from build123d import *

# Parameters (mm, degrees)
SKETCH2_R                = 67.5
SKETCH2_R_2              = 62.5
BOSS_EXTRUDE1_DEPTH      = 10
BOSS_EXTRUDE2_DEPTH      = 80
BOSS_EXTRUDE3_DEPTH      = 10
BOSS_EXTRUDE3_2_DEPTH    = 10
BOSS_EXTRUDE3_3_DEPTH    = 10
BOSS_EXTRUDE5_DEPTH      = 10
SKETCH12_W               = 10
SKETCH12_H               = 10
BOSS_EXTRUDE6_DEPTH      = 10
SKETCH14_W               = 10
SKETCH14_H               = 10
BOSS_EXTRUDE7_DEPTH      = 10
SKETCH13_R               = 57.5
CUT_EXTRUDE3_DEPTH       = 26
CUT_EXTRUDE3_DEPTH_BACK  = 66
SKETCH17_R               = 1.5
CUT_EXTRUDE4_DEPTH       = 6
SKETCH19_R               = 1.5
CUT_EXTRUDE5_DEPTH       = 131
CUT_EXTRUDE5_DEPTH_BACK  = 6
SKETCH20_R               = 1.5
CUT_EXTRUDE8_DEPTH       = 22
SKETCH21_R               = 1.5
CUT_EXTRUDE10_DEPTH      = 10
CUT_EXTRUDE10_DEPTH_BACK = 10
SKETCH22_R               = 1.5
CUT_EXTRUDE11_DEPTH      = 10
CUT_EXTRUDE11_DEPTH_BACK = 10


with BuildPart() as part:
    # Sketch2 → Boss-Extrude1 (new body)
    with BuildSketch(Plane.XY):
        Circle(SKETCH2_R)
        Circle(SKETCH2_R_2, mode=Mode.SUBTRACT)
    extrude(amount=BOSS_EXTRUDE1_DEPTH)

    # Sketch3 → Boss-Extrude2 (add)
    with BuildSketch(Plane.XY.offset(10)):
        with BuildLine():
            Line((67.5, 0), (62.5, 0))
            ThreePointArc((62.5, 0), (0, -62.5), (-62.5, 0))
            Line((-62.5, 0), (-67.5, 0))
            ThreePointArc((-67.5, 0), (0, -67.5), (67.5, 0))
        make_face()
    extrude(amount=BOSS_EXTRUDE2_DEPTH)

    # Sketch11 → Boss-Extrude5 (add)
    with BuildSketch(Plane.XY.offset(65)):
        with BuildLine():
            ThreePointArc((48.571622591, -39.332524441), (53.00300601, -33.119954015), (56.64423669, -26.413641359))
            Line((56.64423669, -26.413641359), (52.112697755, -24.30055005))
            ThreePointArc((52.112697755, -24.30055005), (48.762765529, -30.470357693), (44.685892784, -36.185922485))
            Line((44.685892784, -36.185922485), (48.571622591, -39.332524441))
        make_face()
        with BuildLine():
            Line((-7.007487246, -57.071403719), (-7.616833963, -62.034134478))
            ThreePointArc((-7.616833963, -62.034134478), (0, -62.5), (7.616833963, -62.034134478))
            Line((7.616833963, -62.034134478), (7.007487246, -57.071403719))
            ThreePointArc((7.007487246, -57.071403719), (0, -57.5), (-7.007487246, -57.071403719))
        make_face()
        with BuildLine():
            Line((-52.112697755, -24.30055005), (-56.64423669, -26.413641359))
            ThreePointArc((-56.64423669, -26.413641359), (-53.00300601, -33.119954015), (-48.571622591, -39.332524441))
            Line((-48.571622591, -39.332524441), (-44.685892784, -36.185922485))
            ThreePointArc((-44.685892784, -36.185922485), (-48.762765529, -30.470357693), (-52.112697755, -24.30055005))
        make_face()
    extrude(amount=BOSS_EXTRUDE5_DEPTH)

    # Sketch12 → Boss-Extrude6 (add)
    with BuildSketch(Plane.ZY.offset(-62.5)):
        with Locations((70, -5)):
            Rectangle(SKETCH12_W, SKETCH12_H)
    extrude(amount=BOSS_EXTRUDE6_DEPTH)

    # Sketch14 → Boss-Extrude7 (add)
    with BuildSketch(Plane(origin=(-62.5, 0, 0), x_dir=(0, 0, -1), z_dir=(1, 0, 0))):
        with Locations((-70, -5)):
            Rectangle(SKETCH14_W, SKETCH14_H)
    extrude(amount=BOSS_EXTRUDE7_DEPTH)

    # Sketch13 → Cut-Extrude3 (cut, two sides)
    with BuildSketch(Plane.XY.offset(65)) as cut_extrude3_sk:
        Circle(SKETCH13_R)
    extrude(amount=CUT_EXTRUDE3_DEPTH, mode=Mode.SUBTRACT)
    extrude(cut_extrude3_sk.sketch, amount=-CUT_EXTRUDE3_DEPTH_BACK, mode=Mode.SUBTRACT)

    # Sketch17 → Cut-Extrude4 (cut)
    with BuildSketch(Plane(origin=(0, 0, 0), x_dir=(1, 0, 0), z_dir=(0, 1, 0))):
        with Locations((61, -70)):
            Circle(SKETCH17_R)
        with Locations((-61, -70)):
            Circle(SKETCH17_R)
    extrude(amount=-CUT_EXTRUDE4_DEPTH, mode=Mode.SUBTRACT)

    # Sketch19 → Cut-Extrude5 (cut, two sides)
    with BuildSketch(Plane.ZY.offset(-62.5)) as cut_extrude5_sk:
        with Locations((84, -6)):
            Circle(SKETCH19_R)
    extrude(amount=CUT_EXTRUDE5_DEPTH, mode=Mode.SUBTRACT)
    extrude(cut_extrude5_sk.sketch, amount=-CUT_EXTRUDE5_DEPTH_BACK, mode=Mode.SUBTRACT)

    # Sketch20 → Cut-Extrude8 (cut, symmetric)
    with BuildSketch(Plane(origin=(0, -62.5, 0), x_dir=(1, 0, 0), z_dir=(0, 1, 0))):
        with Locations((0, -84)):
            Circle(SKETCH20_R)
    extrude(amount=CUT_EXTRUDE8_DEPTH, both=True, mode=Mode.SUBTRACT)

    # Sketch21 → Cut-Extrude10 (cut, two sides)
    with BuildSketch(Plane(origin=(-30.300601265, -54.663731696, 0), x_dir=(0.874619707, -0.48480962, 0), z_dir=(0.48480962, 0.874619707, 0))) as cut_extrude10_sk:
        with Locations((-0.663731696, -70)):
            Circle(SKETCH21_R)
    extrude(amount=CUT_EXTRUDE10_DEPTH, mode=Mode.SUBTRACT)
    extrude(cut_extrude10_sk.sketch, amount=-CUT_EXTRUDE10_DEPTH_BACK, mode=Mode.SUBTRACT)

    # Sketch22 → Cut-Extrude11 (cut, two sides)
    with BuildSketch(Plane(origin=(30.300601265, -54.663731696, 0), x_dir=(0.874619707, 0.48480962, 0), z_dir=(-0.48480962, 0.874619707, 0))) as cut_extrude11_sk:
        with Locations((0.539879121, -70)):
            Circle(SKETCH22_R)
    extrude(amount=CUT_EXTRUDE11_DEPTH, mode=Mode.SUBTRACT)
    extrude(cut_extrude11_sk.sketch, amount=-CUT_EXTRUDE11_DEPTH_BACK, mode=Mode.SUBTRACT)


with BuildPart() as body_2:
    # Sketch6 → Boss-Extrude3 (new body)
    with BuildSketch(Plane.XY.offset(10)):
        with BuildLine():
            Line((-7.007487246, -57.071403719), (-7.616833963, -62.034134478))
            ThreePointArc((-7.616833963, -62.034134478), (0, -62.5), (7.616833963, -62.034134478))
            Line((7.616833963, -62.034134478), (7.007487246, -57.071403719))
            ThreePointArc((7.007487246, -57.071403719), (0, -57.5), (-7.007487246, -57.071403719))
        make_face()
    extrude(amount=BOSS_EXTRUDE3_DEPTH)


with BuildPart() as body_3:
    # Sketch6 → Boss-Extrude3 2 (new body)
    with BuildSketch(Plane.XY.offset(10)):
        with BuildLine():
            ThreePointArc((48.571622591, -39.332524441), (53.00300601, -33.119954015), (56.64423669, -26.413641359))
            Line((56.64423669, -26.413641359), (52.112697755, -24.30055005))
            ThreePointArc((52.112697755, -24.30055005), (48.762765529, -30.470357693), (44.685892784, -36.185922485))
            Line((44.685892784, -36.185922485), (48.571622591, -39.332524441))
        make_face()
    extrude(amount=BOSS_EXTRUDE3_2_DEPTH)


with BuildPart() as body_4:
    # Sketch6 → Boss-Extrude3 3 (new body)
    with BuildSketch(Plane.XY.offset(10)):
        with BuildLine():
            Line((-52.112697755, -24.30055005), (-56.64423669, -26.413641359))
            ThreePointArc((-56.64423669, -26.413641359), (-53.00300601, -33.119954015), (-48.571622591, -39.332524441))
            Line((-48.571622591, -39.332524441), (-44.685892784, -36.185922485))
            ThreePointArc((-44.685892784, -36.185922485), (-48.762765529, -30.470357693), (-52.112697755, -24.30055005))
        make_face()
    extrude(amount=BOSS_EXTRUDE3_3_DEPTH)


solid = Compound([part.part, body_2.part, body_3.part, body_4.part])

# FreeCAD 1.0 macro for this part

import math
import FreeCAD as App
import Part
import Sketcher
from FreeCAD import Vector
Q = App.Units.Quantity

doc = App.newDocument("Part")
body = doc.addObject("PartDesign::Body", "Body")

# Sketch on XY plane
sketch1 = body.newObject("Sketcher::SketchObject", "Sketch")
sketch1.AttachmentSupport = (doc.getObject("XY_Plane"), [""])
sketch1.MapMode = "FlatFace"
sketch1.addGeometry(Part.Circle(Vector(0, 0, 0), Vector(0, 0, 1), 68), False)
sketch1.addGeometry(Part.Circle(Vector(0, 0, 0), Vector(0, 0, 1), 62), False)
sketch1.addConstraint(Sketcher.Constraint("Coincident", 0, 3, -1, 1))
sketch1.addConstraint(Sketcher.Constraint("Coincident", 1, 3, -1, 1))
sketch1.addConstraint(Sketcher.Constraint("Diameter", 0, Q("135 mm")))
sketch1.addConstraint(Sketcher.Constraint("Diameter", 1, Q("125 mm")))
pad1 = body.newObject("PartDesign::Pad", "Pad")
pad1.Profile = sketch1
pad1.Length = 10

# Sketch on XY plane
sketch2 = body.newObject("Sketcher::SketchObject", "Sketch001")
sketch2.AttachmentSupport = (doc.getObject("XY_Plane"), [""])
sketch2.MapMode = "FlatFace"
sketch2.AttachmentOffset = App.Placement(Vector(0, 0, 10), App.Rotation())
sketch2.addGeometry(Part.LineSegment(Vector(68, 0, 0), Vector(62, 0, 0)), False)
sketch2.addGeometry(Part.ArcOfCircle(Part.Circle(Vector(0, 0, 0), Vector(0, 0, 1), 62), math.radians(180), math.radians(360)), False)
sketch2.addGeometry(Part.LineSegment(Vector(-62, 0, 0), Vector(-68, 0, 0)), False)
sketch2.addGeometry(Part.ArcOfCircle(Part.Circle(Vector(0, 0, 0), Vector(0, 0, 1), 68), math.radians(180), math.radians(360)), False)
sketch2.addConstraint(Sketcher.Constraint("Coincident", 0, 2, 1, 2))
sketch2.addConstraint(Sketcher.Constraint("Coincident", 1, 1, 2, 1))
sketch2.addConstraint(Sketcher.Constraint("Coincident", 2, 2, 3, 1))
sketch2.addConstraint(Sketcher.Constraint("Coincident", 3, 2, 0, 1))
sketch2.addConstraint(Sketcher.Constraint("Horizontal", 0))
sketch2.addConstraint(Sketcher.Constraint("Horizontal", 2))
sketch2.addConstraint(Sketcher.Constraint("Coincident", 1, 3, -1, 1))
sketch2.addConstraint(Sketcher.Constraint("Coincident", 3, 3, -1, 1))
sketch2.addConstraint(Sketcher.Constraint("PointOnObject", 0, 2, -1))
sketch2.addConstraint(Sketcher.Constraint("PointOnObject", 1, 1, -1))
sketch2.addConstraint(Sketcher.Constraint("Radius", 1, Q("62.5 mm")))
sketch2.addConstraint(Sketcher.Constraint("Radius", 3, Q("67.5 mm")))
pad2 = body.newObject("PartDesign::Pad", "Pad001")
pad2.Profile = sketch2
pad2.Length = 80

# Sketch on XY plane
sketch3 = body.newObject("Sketcher::SketchObject", "Sketch002")
sketch3.AttachmentSupport = (doc.getObject("XY_Plane"), [""])
sketch3.MapMode = "FlatFace"
sketch3.AttachmentOffset = App.Placement(Vector(0, 0, 65), App.Rotation())
sketch3.addGeometry(Part.ArcOfCircle(Part.Circle(Vector(0, 0, 0), Vector(0, 0, 1), 62.5), math.radians(-39), math.radians(-25)), False)
sketch3.addGeometry(Part.LineSegment(Vector(56.6, -26.4, 0), Vector(52.1, -24.3, 0)), False)
sketch3.addGeometry(Part.ArcOfCircle(Part.Circle(Vector(0, 0, 0), Vector(0, 0, 1), 57.5), math.radians(-39), math.radians(-25)), False)
sketch3.addGeometry(Part.LineSegment(Vector(44.7, -36.2, 0), Vector(48.6, -39.3, 0)), False)
sketch3.addGeometry(Part.LineSegment(Vector(-7, -57.1, 0), Vector(-7.6, -62, 0)), False)
sketch3.addGeometry(Part.ArcOfCircle(Part.Circle(Vector(0, 0, 0), Vector(0, 0, 1), 62.5), math.radians(-97), math.radians(-83)), False)
sketch3.addGeometry(Part.LineSegment(Vector(7.6, -62, 0), Vector(7, -57.1, 0)), False)
sketch3.addGeometry(Part.ArcOfCircle(Part.Circle(Vector(0, 0, 0), Vector(0, 0, 1), 57.5), math.radians(-97), math.radians(-83)), False)
sketch3.addGeometry(Part.LineSegment(Vector(-52.1, -24.3, 0), Vector(-56.6, -26.4, 0)), False)
sketch3.addGeometry(Part.ArcOfCircle(Part.Circle(Vector(0, 0, 0), Vector(0, 0, 1), 62.5), math.radians(-155), math.radians(-141)), False)
sketch3.addGeometry(Part.LineSegment(Vector(-48.6, -39.3, 0), Vector(-44.7, -36.2, 0)), False)
sketch3.addGeometry(Part.ArcOfCircle(Part.Circle(Vector(0, 0, 0), Vector(0, 0, 1), 57.5), math.radians(-155), math.radians(-141)), False)
sketch3.addConstraint(Sketcher.Constraint("Coincident", 0, 2, 1, 1))
sketch3.addConstraint(Sketcher.Constraint("Coincident", 1, 2, 2, 2))
sketch3.addConstraint(Sketcher.Constraint("Coincident", 2, 1, 3, 1))
sketch3.addConstraint(Sketcher.Constraint("Coincident", 3, 2, 0, 1))
sketch3.addConstraint(Sketcher.Constraint("Coincident", 4, 2, 5, 1))
sketch3.addConstraint(Sketcher.Constraint("Coincident", 5, 2, 6, 1))
sketch3.addConstraint(Sketcher.Constraint("Coincident", 6, 2, 7, 2))
sketch3.addConstraint(Sketcher.Constraint("Coincident", 7, 1, 4, 1))
sketch3.addConstraint(Sketcher.Constraint("Coincident", 8, 2, 9, 1))
sketch3.addConstraint(Sketcher.Constraint("Coincident", 9, 2, 10, 1))
sketch3.addConstraint(Sketcher.Constraint("Coincident", 10, 2, 11, 2))
sketch3.addConstraint(Sketcher.Constraint("Coincident", 11, 1, 8, 1))
sketch3.addConstraint(Sketcher.Constraint("Coincident", 0, 3, -1, 1))
sketch3.addConstraint(Sketcher.Constraint("Coincident", 2, 3, -1, 1))
sketch3.addConstraint(Sketcher.Constraint("Coincident", 5, 3, -1, 1))
sketch3.addConstraint(Sketcher.Constraint("Coincident", 7, 3, -1, 1))
sketch3.addConstraint(Sketcher.Constraint("Coincident", 9, 3, -1, 1))
sketch3.addConstraint(Sketcher.Constraint("Coincident", 11, 3, -1, 1))
sketch3.addConstraint(Sketcher.Constraint("Equal", 0, 5))
sketch3.addConstraint(Sketcher.Constraint("Equal", 2, 7))
sketch3.addConstraint(Sketcher.Constraint("Equal", 5, 9))
sketch3.addConstraint(Sketcher.Constraint("Equal", 7, 11))
sketch3.addConstraint(Sketcher.Constraint("Horizontal", 4, 2, 5, 2))
sketch3.addConstraint(Sketcher.Constraint("Horizontal", 6, 2, 7, 1))
sketch3.addConstraint(Sketcher.Constraint("Horizontal", 0, 2, 8, 2))
sketch3.addConstraint(Sketcher.Constraint("Horizontal", 3, 2, 9, 2))
sketch3.addConstraint(Sketcher.Constraint("Horizontal", 2, 1, 10, 2))
sketch3.addConstraint(Sketcher.Constraint("Horizontal", 1, 2, 11, 1))
sketch3.addConstraint(Sketcher.Constraint("Radius", 0, Q("62.5 mm")))
sketch3.addConstraint(Sketcher.Constraint("Radius", 2, Q("57.5 mm")))
sketch3.addConstraint(Sketcher.Constraint("Angle", 1, Q("155 deg")))
sketch3.addConstraint(Sketcher.Constraint("Angle", 3, Q("-39 deg")))
sketch3.addConstraint(Sketcher.Constraint("Angle", 4, Q("-97 deg")))
sketch3.addConstraint(Sketcher.Constraint("DistanceY", 0, 2, -1, 1, Q("26.413641 mm")))
sketch3.addConstraint(Sketcher.Constraint("DistanceY", 2, 1, 0, 2, Q("9.772281 mm")))
sketch3.addConstraint(Sketcher.Constraint("DistanceY", 4, 2, 3, 2, Q("22.70161 mm")))
pad3 = body.newObject("PartDesign::Pad", "Pad002")
pad3.Profile = sketch3
pad3.Length = 10

# Sketch on YZ plane
sketch4 = body.newObject("Sketcher::SketchObject", "Sketch003")
sketch4.AttachmentSupport = (doc.getObject("YZ_Plane"), [""])
sketch4.MapMode = "FlatFace"
sketch4.AttachmentOffset = App.Placement(Vector(0, 0, 62.5), App.Rotation())
sketch4.addGeometry(Part.LineSegment(Vector(0, 65, 0), Vector(-10, 65, 0)), False)
sketch4.addGeometry(Part.LineSegment(Vector(-10, 65, 0), Vector(-10, 75, 0)), False)
sketch4.addGeometry(Part.LineSegment(Vector(-10, 75, 0), Vector(0, 75, 0)), False)
sketch4.addGeometry(Part.LineSegment(Vector(0, 75, 0), Vector(0, 65, 0)), False)
sketch4.addConstraint(Sketcher.Constraint("Coincident", 0, 2, 1, 1))
sketch4.addConstraint(Sketcher.Constraint("Coincident", 1, 2, 2, 1))
sketch4.addConstraint(Sketcher.Constraint("Coincident", 2, 2, 3, 1))
sketch4.addConstraint(Sketcher.Constraint("Coincident", 3, 2, 0, 1))
sketch4.addConstraint(Sketcher.Constraint("Horizontal", 0))
sketch4.addConstraint(Sketcher.Constraint("Vertical", 1))
sketch4.addConstraint(Sketcher.Constraint("Horizontal", 2))
sketch4.addConstraint(Sketcher.Constraint("Vertical", 3))
sketch4.addConstraint(Sketcher.Constraint("PointOnObject", 2, 2, -2))
sketch4.addConstraint(Sketcher.Constraint("Equal", 2, 1))
sketch4.addConstraint(Sketcher.Constraint("DistanceX", 0, 2, 0, 1, Q("10 mm")))
sketch4.addConstraint(Sketcher.Constraint("DistanceY", -1, 1, 0, 2, Q("65 mm")))
pad4 = body.newObject("PartDesign::Pad", "Pad003")
pad4.Profile = sketch4
pad4.Length = 10
pad4.Reversed = True

# Sketch on YZ plane
sketch5 = body.newObject("Sketcher::SketchObject", "Sketch004")
sketch5.AttachmentSupport = (doc.getObject("YZ_Plane"), [""])
sketch5.MapMode = "FlatFace"
sketch5.AttachmentOffset = App.Placement(Vector(0, 0, -62.5), App.Rotation())
sketch5.addGeometry(Part.LineSegment(Vector(0, 75, 0), Vector(-10, 75, 0)), False)
sketch5.addGeometry(Part.LineSegment(Vector(-10, 75, 0), Vector(-10, 65, 0)), False)
sketch5.addGeometry(Part.LineSegment(Vector(-10, 65, 0), Vector(0, 65, 0)), False)
sketch5.addGeometry(Part.LineSegment(Vector(0, 65, 0), Vector(0, 75, 0)), False)
sketch5.addConstraint(Sketcher.Constraint("Coincident", 0, 2, 1, 1))
sketch5.addConstraint(Sketcher.Constraint("Coincident", 1, 2, 2, 1))
sketch5.addConstraint(Sketcher.Constraint("Coincident", 2, 2, 3, 1))
sketch5.addConstraint(Sketcher.Constraint("Coincident", 3, 2, 0, 1))
sketch5.addConstraint(Sketcher.Constraint("Horizontal", 0))
sketch5.addConstraint(Sketcher.Constraint("Vertical", 1))
sketch5.addConstraint(Sketcher.Constraint("Horizontal", 2))
sketch5.addConstraint(Sketcher.Constraint("Vertical", 3))
sketch5.addConstraint(Sketcher.Constraint("PointOnObject", 2, 2, -2))
sketch5.addConstraint(Sketcher.Constraint("Equal", 2, 1))
sketch5.addConstraint(Sketcher.Constraint("DistanceX", 0, 2, 0, 1, Q("10 mm")))
sketch5.addConstraint(Sketcher.Constraint("DistanceY", -1, 1, 0, 2, Q("75 mm")))
pad5 = body.newObject("PartDesign::Pad", "Pad004")
pad5.Profile = sketch5
pad5.Length = 10

# Sketch on XY plane
sketch6 = body.newObject("Sketcher::SketchObject", "Sketch005")
sketch6.AttachmentSupport = (doc.getObject("XY_Plane"), [""])
sketch6.MapMode = "FlatFace"
sketch6.AttachmentOffset = App.Placement(Vector(0, 0, 65), App.Rotation())
sketch6.addGeometry(Part.Circle(Vector(0, 0, 0), Vector(0, 0, 1), 58), False)
sketch6.addConstraint(Sketcher.Constraint("Coincident", 0, 3, -1, 1))
sketch6.addConstraint(Sketcher.Constraint("Diameter", 0, Q("115 mm")))
pocket1 = body.newObject("PartDesign::Pocket", "Pocket")
pocket1.Profile = sketch6
pocket1.Type = "ThroughAll"
pocket1.Midplane = True

# Sketch on XZ plane
sketch7 = body.newObject("Sketcher::SketchObject", "Sketch006")
sketch7.AttachmentSupport = (doc.getObject("XZ_Plane"), [""])
sketch7.MapMode = "FlatFace"
sketch7.addGeometry(Part.Circle(Vector(61, 70, 0), Vector(0, 0, 1), 1.5), False)
sketch7.addGeometry(Part.Circle(Vector(-61, 70, 0), Vector(0, 0, 1), 1.5), False)
sketch7.addConstraint(Sketcher.Constraint("Equal", 0, 1))
sketch7.addConstraint(Sketcher.Constraint("Symmetric", 0, 3, 1, 3, -2))
sketch7.addConstraint(Sketcher.Constraint("Diameter", 0, Q("3 mm")))
sketch7.addConstraint(Sketcher.Constraint("DistanceX", -1, 1, 0, 3, Q("61 mm")))
sketch7.addConstraint(Sketcher.Constraint("DistanceY", -1, 1, 0, 3, Q("70 mm")))
pocket2 = body.newObject("PartDesign::Pocket", "Pocket001")
pocket2.Profile = sketch7
pocket2.Length = 6
pocket2.Reversed = True

# Sketch on YZ plane
sketch8 = body.newObject("Sketcher::SketchObject", "Sketch007")
sketch8.AttachmentSupport = (doc.getObject("YZ_Plane"), [""])
sketch8.MapMode = "FlatFace"
sketch8.AttachmentOffset = App.Placement(Vector(0, 0, 62.5), App.Rotation())
sketch8.addGeometry(Part.Circle(Vector(-6, 84, 0), Vector(0, 0, 1), 1.5), False)
sketch8.addConstraint(Sketcher.Constraint("Diameter", 0, Q("3 mm")))
sketch8.addConstraint(Sketcher.Constraint("DistanceX", 0, 3, -1, 1, Q("6 mm")))
sketch8.addConstraint(Sketcher.Constraint("DistanceY", -1, 1, 0, 3, Q("84 mm")))
pocket3 = body.newObject("PartDesign::Pocket", "Pocket002")
pocket3.Profile = sketch8
pocket3.Type = "ThroughAll"
pocket3.Midplane = True

# Sketch on XZ plane
sketch9 = body.newObject("Sketcher::SketchObject", "Sketch008")
sketch9.AttachmentSupport = (doc.getObject("XZ_Plane"), [""])
sketch9.MapMode = "FlatFace"
sketch9.AttachmentOffset = App.Placement(Vector(0, 0, 62.5), App.Rotation())
sketch9.addGeometry(Part.Circle(Vector(0, 84, 0), Vector(0, 0, 1), 1.5), False)
sketch9.addConstraint(Sketcher.Constraint("PointOnObject", 0, 3, -2))
sketch9.addConstraint(Sketcher.Constraint("Diameter", 0, Q("3 mm")))
sketch9.addConstraint(Sketcher.Constraint("DistanceY", -1, 1, 0, 3, Q("84 mm")))
pocket4 = body.newObject("PartDesign::Pocket", "Pocket003")
pocket4.Profile = sketch9
pocket4.Length = 44
pocket4.Midplane = True

# Sketch on an angled plane
sketch10 = body.newObject("Sketcher::SketchObject", "Sketch009")
sketch10.Placement = App.Placement(Vector(-30.300601, -54.663732, 0), App.Rotation(Vector(0.874619707, -0.48480962, 0), Vector(0, 0, -1), Vector(0.48480962, 0.874619707, 0), "ZXY"))
sketch10.addGeometry(Part.Circle(Vector(-0.7, -70, 0), Vector(0, 0, 1), 1.5), False)
sketch10.addConstraint(Sketcher.Constraint("Diameter", 0, Q("3 mm")))
sketch10.addConstraint(Sketcher.Constraint("DistanceY", 0, 3, -1, 1, Q("70 mm")))
sketch10.addConstraint(Sketcher.Constraint("DistanceX", 0, 3, -1, 1, Q("0.663732 mm")))
pocket5 = body.newObject("PartDesign::Pocket", "Pocket004")
pocket5.Profile = sketch10
pocket5.Type = "ThroughAll"
pocket5.Midplane = True

# Sketch on an angled plane
sketch11 = body.newObject("Sketcher::SketchObject", "Sketch010")
sketch11.Placement = App.Placement(Vector(30.300601, -54.663732, 0), App.Rotation(Vector(0.874619707, 0.48480962, 0), Vector(0, 0, -1), Vector(-0.48480962, 0.874619707, 0), "ZXY"))
sketch11.addGeometry(Part.Circle(Vector(0.5, -70, 0), Vector(0, 0, 1), 1.5), False)
sketch11.addConstraint(Sketcher.Constraint("Diameter", 0, Q("3 mm")))
sketch11.addConstraint(Sketcher.Constraint("DistanceY", 0, 3, -1, 1, Q("70 mm")))
sketch11.addConstraint(Sketcher.Constraint("DistanceX", -1, 1, 0, 3, Q("0.539879 mm")))
pocket6 = body.newObject("PartDesign::Pocket", "Pocket005")
pocket6.Profile = sketch11
pocket6.Type = "ThroughAll"
pocket6.Midplane = True
body2 = doc.addObject("PartDesign::Body", "Body001")

# Sketch on XY plane
sketch12 = body2.newObject("Sketcher::SketchObject", "Sketch011")
sketch12.AttachmentSupport = (doc.getObject("XY_Plane001"), [""])
sketch12.MapMode = "FlatFace"
sketch12.AttachmentOffset = App.Placement(Vector(0, 0, 10), App.Rotation())
sketch12.addGeometry(Part.LineSegment(Vector(-7, -57, 0), Vector(-8, -62, 0)), False)
sketch12.addGeometry(Part.ArcOfCircle(Part.Circle(Vector(0, 0, 0), Vector(0, 0, 1), 63), math.radians(-97), math.radians(-83)), False)
sketch12.addGeometry(Part.LineSegment(Vector(8, -62, 0), Vector(7, -57, 0)), False)
sketch12.addGeometry(Part.ArcOfCircle(Part.Circle(Vector(0, 0, 0), Vector(0, 0, 1), 57), math.radians(-97), math.radians(-83)), False)
sketch12.addConstraint(Sketcher.Constraint("Coincident", 0, 2, 1, 1))
sketch12.addConstraint(Sketcher.Constraint("Coincident", 1, 2, 2, 1))
sketch12.addConstraint(Sketcher.Constraint("Coincident", 2, 2, 3, 2))
sketch12.addConstraint(Sketcher.Constraint("Coincident", 3, 1, 0, 1))
sketch12.addConstraint(Sketcher.Constraint("Coincident", 1, 3, -1, 1))
sketch12.addConstraint(Sketcher.Constraint("Coincident", 3, 3, -1, 1))
sketch12.addConstraint(Sketcher.Constraint("Horizontal", 0, 2, 1, 2))
sketch12.addConstraint(Sketcher.Constraint("Horizontal", 2, 2, 3, 1))
sketch12.addConstraint(Sketcher.Constraint("Radius", 1, Q("62.5 mm")))
sketch12.addConstraint(Sketcher.Constraint("Radius", 3, Q("57.5 mm")))
sketch12.addConstraint(Sketcher.Constraint("Angle", 0, Q("-97 deg")))
sketch12.addConstraint(Sketcher.Constraint("DistanceX", 0, 2, 2, 2, Q("14.624321 mm")))
pad6 = body2.newObject("PartDesign::Pad", "Pad005")
pad6.Profile = sketch12
pad6.Length = 10
body3 = doc.addObject("PartDesign::Body", "Body002")

# Sketch on XY plane
sketch13 = body3.newObject("Sketcher::SketchObject", "Sketch012")
sketch13.AttachmentSupport = (doc.getObject("XY_Plane002"), [""])
sketch13.MapMode = "FlatFace"
sketch13.AttachmentOffset = App.Placement(Vector(0, 0, 10), App.Rotation())
sketch13.addGeometry(Part.ArcOfCircle(Part.Circle(Vector(0, 0, 0), Vector(0, 0, 1), 62.5), math.radians(-39), math.radians(-25)), False)
sketch13.addGeometry(Part.LineSegment(Vector(56.6, -26.4, 0), Vector(52.1, -24.3, 0)), False)
sketch13.addGeometry(Part.ArcOfCircle(Part.Circle(Vector(0, 0, 0), Vector(0, 0, 1), 57.5), math.radians(-39), math.radians(-25)), False)
sketch13.addGeometry(Part.LineSegment(Vector(44.7, -36.2, 0), Vector(48.6, -39.3, 0)), False)
sketch13.addConstraint(Sketcher.Constraint("Coincident", 0, 2, 1, 1))
sketch13.addConstraint(Sketcher.Constraint("Coincident", 1, 2, 2, 2))
sketch13.addConstraint(Sketcher.Constraint("Coincident", 2, 1, 3, 1))
sketch13.addConstraint(Sketcher.Constraint("Coincident", 3, 2, 0, 1))
sketch13.addConstraint(Sketcher.Constraint("Coincident", 0, 3, -1, 1))
sketch13.addConstraint(Sketcher.Constraint("Coincident", 2, 3, -1, 1))
sketch13.addConstraint(Sketcher.Constraint("Radius", 0, Q("62.5 mm")))
sketch13.addConstraint(Sketcher.Constraint("Radius", 2, Q("57.5 mm")))
sketch13.addConstraint(Sketcher.Constraint("Angle", 1, Q("155 deg")))
sketch13.addConstraint(Sketcher.Constraint("Angle", 3, Q("-39 deg")))
sketch13.addConstraint(Sketcher.Constraint("DistanceY", 0, 2, -1, 1, Q("26.413641 mm")))
sketch13.addConstraint(Sketcher.Constraint("DistanceY", 2, 1, 0, 2, Q("9.772281 mm")))
pad7 = body3.newObject("PartDesign::Pad", "Pad006")
pad7.Profile = sketch13
pad7.Length = 10
body4 = doc.addObject("PartDesign::Body", "Body003")

# Sketch on XY plane
sketch14 = body4.newObject("Sketcher::SketchObject", "Sketch013")
sketch14.AttachmentSupport = (doc.getObject("XY_Plane003"), [""])
sketch14.MapMode = "FlatFace"
sketch14.AttachmentOffset = App.Placement(Vector(0, 0, 10), App.Rotation())
sketch14.addGeometry(Part.LineSegment(Vector(-52.1, -24.3, 0), Vector(-56.6, -26.4, 0)), False)
sketch14.addGeometry(Part.ArcOfCircle(Part.Circle(Vector(0, 0, 0), Vector(0, 0, 1), 62.5), math.radians(-155), math.radians(-141)), False)
sketch14.addGeometry(Part.LineSegment(Vector(-48.6, -39.3, 0), Vector(-44.7, -36.2, 0)), False)
sketch14.addGeometry(Part.ArcOfCircle(Part.Circle(Vector(0, 0, 0), Vector(0, 0, 1), 57.5), math.radians(-155), math.radians(-141)), False)
sketch14.addConstraint(Sketcher.Constraint("Coincident", 0, 2, 1, 1))
sketch14.addConstraint(Sketcher.Constraint("Coincident", 1, 2, 2, 1))
sketch14.addConstraint(Sketcher.Constraint("Coincident", 2, 2, 3, 2))
sketch14.addConstraint(Sketcher.Constraint("Coincident", 3, 1, 0, 1))
sketch14.addConstraint(Sketcher.Constraint("Coincident", 1, 3, -1, 1))
sketch14.addConstraint(Sketcher.Constraint("Coincident", 3, 3, -1, 1))
sketch14.addConstraint(Sketcher.Constraint("Radius", 1, Q("62.5 mm")))
sketch14.addConstraint(Sketcher.Constraint("Radius", 3, Q("57.5 mm")))
sketch14.addConstraint(Sketcher.Constraint("Angle", 0, Q("-155 deg")))
sketch14.addConstraint(Sketcher.Constraint("Angle", 2, Q("39 deg")))
sketch14.addConstraint(Sketcher.Constraint("DistanceY", 0, 2, -1, 1, Q("26.413641 mm")))
sketch14.addConstraint(Sketcher.Constraint("DistanceY", 2, 2, 0, 2, Q("9.772281 mm")))
pad8 = body4.newObject("PartDesign::Pad", "Pad007")
pad8.Profile = sketch14
pad8.Length = 10

doc.recompute()
